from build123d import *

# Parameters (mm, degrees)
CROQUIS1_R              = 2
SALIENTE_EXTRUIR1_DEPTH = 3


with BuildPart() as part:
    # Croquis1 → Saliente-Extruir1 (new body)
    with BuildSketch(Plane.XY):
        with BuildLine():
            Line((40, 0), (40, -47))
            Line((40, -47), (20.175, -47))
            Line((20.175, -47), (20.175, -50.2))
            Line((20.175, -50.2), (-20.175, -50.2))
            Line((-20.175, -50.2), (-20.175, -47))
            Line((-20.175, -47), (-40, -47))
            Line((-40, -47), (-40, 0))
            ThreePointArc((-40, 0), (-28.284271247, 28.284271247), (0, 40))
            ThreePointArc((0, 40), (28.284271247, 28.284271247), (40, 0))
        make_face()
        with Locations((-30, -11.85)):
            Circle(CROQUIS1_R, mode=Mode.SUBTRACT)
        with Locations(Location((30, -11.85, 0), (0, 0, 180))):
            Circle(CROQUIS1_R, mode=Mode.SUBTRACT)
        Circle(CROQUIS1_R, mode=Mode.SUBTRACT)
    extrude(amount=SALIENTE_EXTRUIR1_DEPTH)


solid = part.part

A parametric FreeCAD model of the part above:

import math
import FreeCAD as App
import Part
import Sketcher
from FreeCAD import Vector

doc = App.newDocument("Part")
params = doc.addObject("Spreadsheet::Sheet", "Params")
for row, (alias, value) in enumerate([
    ("sketch1_diameter", "4 mm"),
    ("sketch1_radius", "40 mm"),
    ("sketch1_height", "47 mm"),
    ("sketch1_height2", "3.2 mm"),
    ("sketch1_width", "40.35 mm"),
    ("pad1_length", "3 mm"),
], start=1):
    params.set(f"A{row}", alias)
    params.set(f"B{row}", "=" + value)
    params.setAlias(f"B{row}", alias)

body = doc.addObject("PartDesign::Body", "Body")

# Sketch on XY plane
sketch1 = body.newObject("Sketcher::SketchObject", "Sketch")
sketch1.AttachmentSupport = (doc.getObject("XY_Plane"), [""])
sketch1.MapMode = "FlatFace"
sketch1.addGeometry([
    Part.LineSegment(Vector(40, -47, 0), Vector(40, 0, 0)),  # 0
    Part.ArcOfCircle(Part.Circle(Vector(0, 0, 0), Vector(0, 0, 1), 40), math.radians(0), math.radians(90)),  # 1
    Part.ArcOfCircle(Part.Circle(Vector(0, 0, 0), Vector(0, 0, 1), 40), math.radians(90), math.radians(180)),  # 2
    Part.LineSegment(Vector(-40, 0, 0), Vector(-40, -47, 0)),  # 3
    Part.LineSegment(Vector(-40, -47, 0), Vector(-20.175, -47, 0)),  # 4
    Part.LineSegment(Vector(-20.175, -47, 0), Vector(-20.175, -50.2, 0)),  # 5
    Part.LineSegment(Vector(-20.175, -50.2, 0), Vector(20.175, -50.2, 0)),  # 6
    Part.LineSegment(Vector(20.175, -50.2, 0), Vector(20.175, -47, 0)),  # 7
    Part.LineSegment(Vector(20.175, -47, 0), Vector(40, -47, 0)),  # 8
    Part.Circle(Vector(30, -11.85, 0), Vector(0, 0, 1), 2),  # 9
    Part.Circle(Vector(-30, -11.85, 0), Vector(0, 0, 1), 2),  # 10
    Part.Circle(Vector(0, 0, 0), Vector(0, 0, 1), 2),  # 11
], False)
sketch1.addConstraint([
    Sketcher.Constraint("Tangent", 0, 2, 1, 1),
    Sketcher.Constraint("Tangent", 1, 2, 2, 1),
    Sketcher.Constraint("Tangent", 2, 2, 3, 1),
    Sketcher.Constraint("Coincident", 3, 2, 4, 1),
    Sketcher.Constraint("Coincident", 4, 2, 5, 1),
    Sketcher.Constraint("Coincident", 5, 2, 6, 1),
    Sketcher.Constraint("Coincident", 6, 2, 7, 1),
    Sketcher.Constraint("Coincident", 7, 2, 8, 1),
    Sketcher.Constraint("Coincident", 8, 2, 0, 1),
    Sketcher.Constraint("Vertical", 0),
    Sketcher.Constraint("Vertical", 3),
    Sketcher.Constraint("Horizontal", 4),
    Sketcher.Constraint("Vertical", 5),
    Sketcher.Constraint("Horizontal", 6),
    Sketcher.Constraint("Vertical", 7),
    Sketcher.Constraint("Horizontal", 8),
    Sketcher.Constraint("Coincident", 1, 3, -1, 1),
    Sketcher.Constraint("Coincident", 11, 3, -1, 1),
    Sketcher.Constraint("Equal", 1, 2),
    Sketcher.Constraint("Equal", 9, 10),
    Sketcher.Constraint("Equal", 10, 11),
    Sketcher.Constraint("Symmetric", 9, 3, 10, 3, -2),
    Sketcher.Constraint("Symmetric", 4, 2, 7, 2, -2),
    Sketcher.Constraint("PointOnObject", 1, 2, -2),
    Sketcher.Constraint("Diameter", 9, 4.0),
    Sketcher.Constraint("Radius", 1, 40.0),
    Sketcher.Constraint("DistanceY", 0, 1, 0, 2, 47.0),
    Sketcher.Constraint("DistanceY", 5, 2, 5, 1, 3.2),
    Sketcher.Constraint("DistanceX", -1, 1, 9, 3, 30.0),
    Sketcher.Constraint("DistanceX", 6, 1, 6, 2, 40.35),
    Sketcher.Constraint("DistanceY", 9, 3, -1, 1, 11.85),
])
sketch1.setExpression("Constraints[24]", "Params.sketch1_diameter")
sketch1.setExpression("Constraints[25]", "Params.sketch1_radius")
sketch1.setExpression("Constraints[26]", "Params.sketch1_height")
sketch1.setExpression("Constraints[27]", "Params.sketch1_height2")
sketch1.setExpression("Constraints[29]", "Params.sketch1_width")
pad1 = body.newObject("PartDesign::Pad", "Pad")
pad1.Profile = sketch1
pad1.setExpression("Length", "Params.pad1_length")

doc.recompute()
